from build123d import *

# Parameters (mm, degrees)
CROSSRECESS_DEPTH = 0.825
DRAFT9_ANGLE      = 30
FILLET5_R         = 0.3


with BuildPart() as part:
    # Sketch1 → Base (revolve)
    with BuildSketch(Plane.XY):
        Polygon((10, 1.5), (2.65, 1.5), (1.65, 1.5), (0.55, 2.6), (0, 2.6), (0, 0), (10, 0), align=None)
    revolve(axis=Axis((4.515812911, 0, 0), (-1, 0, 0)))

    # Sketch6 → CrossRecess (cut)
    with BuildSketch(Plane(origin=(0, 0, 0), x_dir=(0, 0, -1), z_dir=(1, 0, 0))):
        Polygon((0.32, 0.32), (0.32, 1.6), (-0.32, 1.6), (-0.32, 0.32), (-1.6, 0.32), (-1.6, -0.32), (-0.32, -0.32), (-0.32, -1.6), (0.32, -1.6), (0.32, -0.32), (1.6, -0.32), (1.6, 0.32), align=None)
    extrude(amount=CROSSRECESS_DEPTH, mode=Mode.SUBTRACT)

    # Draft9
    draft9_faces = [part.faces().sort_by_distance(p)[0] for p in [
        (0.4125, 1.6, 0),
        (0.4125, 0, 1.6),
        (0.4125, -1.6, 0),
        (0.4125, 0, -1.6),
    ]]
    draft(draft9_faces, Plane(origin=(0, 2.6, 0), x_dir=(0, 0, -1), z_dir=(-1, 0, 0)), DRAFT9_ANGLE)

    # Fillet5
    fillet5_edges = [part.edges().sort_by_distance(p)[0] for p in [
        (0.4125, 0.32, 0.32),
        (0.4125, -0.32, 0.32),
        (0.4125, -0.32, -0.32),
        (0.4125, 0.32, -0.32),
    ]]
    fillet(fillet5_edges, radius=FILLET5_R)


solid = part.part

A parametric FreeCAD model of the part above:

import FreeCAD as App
import Part
import Sketcher
Q = App.Units.Quantity


def edges_at(feature, points):
    """Names of the edges that pass closest to the given points."""
    edges = feature.Shape.Edges
    near = lambda p: min(range(len(edges)), key=lambda i: edges[i].distToShape(Part.Vertex(*p))[0])
    return sorted({f"Edge{near(p) + 1}" for p in points})


def faces_at(feature, points):
    """Names of the faces that lie closest to the given points."""
    faces = feature.Shape.Faces
    near = lambda p: min(range(len(faces)), key=lambda i: faces[i].distToShape(Part.Vertex(*p))[0])
    return sorted({f"Face{near(p) + 1}" for p in points})


def add_polygon(sketch, points):
    """Adds a closed chain of lines whose ends are joined by coincident constraints."""
    first, n = sketch.GeometryCount, len(points)
    for a, b in zip(points, points[1:] + points[:1]):
        sketch.addGeometry(Part.LineSegment(App.Vector(*a, 0), App.Vector(*b, 0)), False)
    for i in range(n):
        sketch.addConstraint(Sketcher.Constraint("Coincident", first + i, 2, first + (i + 1) % n, 1))

doc = App.newDocument("Part")
params = doc.addObject("Spreadsheet::Sheet", "Params")
for row, (alias, value) in enumerate([
    ("sketch1_width", "10 mm"),
    ("sketch1_height", "2.6 mm"),
    ("sketch1_height2", "1.5 mm"),
    ("sketch1_width2", "8.35 mm"),
    ("revolution_angle", "360 deg"),
    ("sketch2_width", "1.28 mm"),
    ("sketch2_width2", "0.64 mm"),
    ("pocket1_length", "0.825 mm"),
    ("draft_angle", "30 deg"),
    ("fillet_radius", "0.3 mm"),
], start=1):
    params.set(f"A{row}", alias)
    params.set(f"B{row}", "=" + value)
    params.setAlias(f"B{row}", alias)

body = doc.addObject("PartDesign::Body", "Body")

# Sketch on XY plane
sketch1 = body.newObject("Sketcher::SketchObject", "Sketch")
sketch1.AttachmentSupport = (doc.getObject("XY_Plane"), [""])
sketch1.MapMode = "FlatFace"
add_polygon(sketch1, [(10, 1.5), (1.6, 1.5), (0.6, 2.6), (0, 2.6), (0, 0), (10, 0)])  # lines 0-5
sketch1.addConstraint([
    Sketcher.Constraint("Horizontal", 0),
    Sketcher.Constraint("Horizontal", 2),
    Sketcher.Constraint("Vertical", 3),
    Sketcher.Constraint("Horizontal", 4),
    Sketcher.Constraint("Vertical", 5),
    Sketcher.Constraint("Coincident", 3, 2, -1, 1),
    Sketcher.Constraint("DistanceX", 4, 1, 4, 2, Q("10 mm")),
    Sketcher.Constraint("Angle", 1, Q("135 deg")),
    Sketcher.Constraint("DistanceY", 3, 2, 3, 1, Q("2.6 mm")),
    Sketcher.Constraint("DistanceY", 5, 1, 5, 2, Q("1.5 mm")),
    Sketcher.Constraint("DistanceX", 0, 2, 0, 1, Q("8.35 mm")),
])
sketch1.setExpression("Constraints[12]", "Params.sketch1_width")
sketch1.setExpression("Constraints[14]", "Params.sketch1_height")
sketch1.setExpression("Constraints[15]", "Params.sketch1_height2")
sketch1.setExpression("Constraints[16]", "Params.sketch1_width2")
revolution = body.newObject("PartDesign::Revolution", "Revolution")
revolution.Profile = sketch1
revolution.ReferenceAxis = (sketch1, ["H_Axis"])
revolution.setExpression("Angle", "Params.revolution_angle")

# Sketch on YZ plane
sketch2 = body.newObject("Sketcher::SketchObject", "Sketch001")
sketch2.AttachmentSupport = (doc.getObject("YZ_Plane"), [""])
sketch2.MapMode = "FlatFace"
add_polygon(sketch2, [(0.3, -0.3), (1.6, -0.3), (1.6, 0.3), (0.3, 0.3), (0.3, 1.6), (-0.3, 1.6), (-0.3, 0.3), (-1.6, 0.3), (-1.6, -0.3), (-0.3, -0.3), (-0.3, -1.6), (0.3, -1.6)])  # lines 0-11
sketch2.addConstraint([
    Sketcher.Constraint("Horizontal", 0),
    Sketcher.Constraint("Vertical", 1),
    Sketcher.Constraint("Horizontal", 2),
    Sketcher.Constraint("Vertical", 3),
    Sketcher.Constraint("Horizontal", 4),
    Sketcher.Constraint("Vertical", 5),
    Sketcher.Constraint("Horizontal", 6),
    Sketcher.Constraint("Vertical", 7),
    Sketcher.Constraint("Horizontal", 8),
    Sketcher.Constraint("Vertical", 9),
    Sketcher.Constraint("Horizontal", 10),
    Sketcher.Constraint("Vertical", 11),
    Sketcher.Constraint("Symmetric", 0, 2, 6, 2, -1, 1),
    Sketcher.Constraint("Symmetric", 2, 2, 8, 2, -1, 1),
    Sketcher.Constraint("Symmetric", 4, 2, 10, 2, -1, 1),
    Sketcher.Constraint("Symmetric", 2, 2, 5, 2, -2),
    Sketcher.Constraint("Equal", 10, 1),
    Sketcher.Constraint("Equal", 8, 3),
    Sketcher.Constraint("DistanceX", 0, 1, 0, 2, Q("1.28 mm")),
    Sketcher.Constraint("DistanceX", 4, 2, 4, 1, Q("0.64 mm")),
])
sketch2.setExpression("Constraints[30]", "Params.sketch2_width")
sketch2.setExpression("Constraints[31]", "Params.sketch2_width2")
pocket1 = body.newObject("PartDesign::Pocket", "Pocket")
pocket1.Profile = sketch2
pocket1.setExpression("Length", "Params.pocket1_length")
pocket1.Reversed = True
doc.recompute()

draft = body.newObject("PartDesign::Draft", "Draft")
draft.Base = (pocket1, faces_at(pocket1, [
    (0.412, 1.6, 0),
    (0.412, 0, 1.6),
    (0.412, -1.6, 0),
    (0.412, 0, -1.6),
]))
draft.NeutralPlane = (doc.getObject("YZ_Plane"), [""])
draft.setExpression("Angle", "Params.draft_angle")
draft.Reversed = True
doc.recompute()

fillet = body.newObject("PartDesign::Fillet", "Fillet")
fillet.Base = (draft, edges_at(draft, [
    (0.412, 0.32, 0.32),
    (0.412, -0.32, 0.32),
    (0.412, -0.32, -0.32),
    (0.412, 0.32, -0.32),
]))
fillet.setExpression("Radius", "Params.fillet_radius")

doc.recompute()
